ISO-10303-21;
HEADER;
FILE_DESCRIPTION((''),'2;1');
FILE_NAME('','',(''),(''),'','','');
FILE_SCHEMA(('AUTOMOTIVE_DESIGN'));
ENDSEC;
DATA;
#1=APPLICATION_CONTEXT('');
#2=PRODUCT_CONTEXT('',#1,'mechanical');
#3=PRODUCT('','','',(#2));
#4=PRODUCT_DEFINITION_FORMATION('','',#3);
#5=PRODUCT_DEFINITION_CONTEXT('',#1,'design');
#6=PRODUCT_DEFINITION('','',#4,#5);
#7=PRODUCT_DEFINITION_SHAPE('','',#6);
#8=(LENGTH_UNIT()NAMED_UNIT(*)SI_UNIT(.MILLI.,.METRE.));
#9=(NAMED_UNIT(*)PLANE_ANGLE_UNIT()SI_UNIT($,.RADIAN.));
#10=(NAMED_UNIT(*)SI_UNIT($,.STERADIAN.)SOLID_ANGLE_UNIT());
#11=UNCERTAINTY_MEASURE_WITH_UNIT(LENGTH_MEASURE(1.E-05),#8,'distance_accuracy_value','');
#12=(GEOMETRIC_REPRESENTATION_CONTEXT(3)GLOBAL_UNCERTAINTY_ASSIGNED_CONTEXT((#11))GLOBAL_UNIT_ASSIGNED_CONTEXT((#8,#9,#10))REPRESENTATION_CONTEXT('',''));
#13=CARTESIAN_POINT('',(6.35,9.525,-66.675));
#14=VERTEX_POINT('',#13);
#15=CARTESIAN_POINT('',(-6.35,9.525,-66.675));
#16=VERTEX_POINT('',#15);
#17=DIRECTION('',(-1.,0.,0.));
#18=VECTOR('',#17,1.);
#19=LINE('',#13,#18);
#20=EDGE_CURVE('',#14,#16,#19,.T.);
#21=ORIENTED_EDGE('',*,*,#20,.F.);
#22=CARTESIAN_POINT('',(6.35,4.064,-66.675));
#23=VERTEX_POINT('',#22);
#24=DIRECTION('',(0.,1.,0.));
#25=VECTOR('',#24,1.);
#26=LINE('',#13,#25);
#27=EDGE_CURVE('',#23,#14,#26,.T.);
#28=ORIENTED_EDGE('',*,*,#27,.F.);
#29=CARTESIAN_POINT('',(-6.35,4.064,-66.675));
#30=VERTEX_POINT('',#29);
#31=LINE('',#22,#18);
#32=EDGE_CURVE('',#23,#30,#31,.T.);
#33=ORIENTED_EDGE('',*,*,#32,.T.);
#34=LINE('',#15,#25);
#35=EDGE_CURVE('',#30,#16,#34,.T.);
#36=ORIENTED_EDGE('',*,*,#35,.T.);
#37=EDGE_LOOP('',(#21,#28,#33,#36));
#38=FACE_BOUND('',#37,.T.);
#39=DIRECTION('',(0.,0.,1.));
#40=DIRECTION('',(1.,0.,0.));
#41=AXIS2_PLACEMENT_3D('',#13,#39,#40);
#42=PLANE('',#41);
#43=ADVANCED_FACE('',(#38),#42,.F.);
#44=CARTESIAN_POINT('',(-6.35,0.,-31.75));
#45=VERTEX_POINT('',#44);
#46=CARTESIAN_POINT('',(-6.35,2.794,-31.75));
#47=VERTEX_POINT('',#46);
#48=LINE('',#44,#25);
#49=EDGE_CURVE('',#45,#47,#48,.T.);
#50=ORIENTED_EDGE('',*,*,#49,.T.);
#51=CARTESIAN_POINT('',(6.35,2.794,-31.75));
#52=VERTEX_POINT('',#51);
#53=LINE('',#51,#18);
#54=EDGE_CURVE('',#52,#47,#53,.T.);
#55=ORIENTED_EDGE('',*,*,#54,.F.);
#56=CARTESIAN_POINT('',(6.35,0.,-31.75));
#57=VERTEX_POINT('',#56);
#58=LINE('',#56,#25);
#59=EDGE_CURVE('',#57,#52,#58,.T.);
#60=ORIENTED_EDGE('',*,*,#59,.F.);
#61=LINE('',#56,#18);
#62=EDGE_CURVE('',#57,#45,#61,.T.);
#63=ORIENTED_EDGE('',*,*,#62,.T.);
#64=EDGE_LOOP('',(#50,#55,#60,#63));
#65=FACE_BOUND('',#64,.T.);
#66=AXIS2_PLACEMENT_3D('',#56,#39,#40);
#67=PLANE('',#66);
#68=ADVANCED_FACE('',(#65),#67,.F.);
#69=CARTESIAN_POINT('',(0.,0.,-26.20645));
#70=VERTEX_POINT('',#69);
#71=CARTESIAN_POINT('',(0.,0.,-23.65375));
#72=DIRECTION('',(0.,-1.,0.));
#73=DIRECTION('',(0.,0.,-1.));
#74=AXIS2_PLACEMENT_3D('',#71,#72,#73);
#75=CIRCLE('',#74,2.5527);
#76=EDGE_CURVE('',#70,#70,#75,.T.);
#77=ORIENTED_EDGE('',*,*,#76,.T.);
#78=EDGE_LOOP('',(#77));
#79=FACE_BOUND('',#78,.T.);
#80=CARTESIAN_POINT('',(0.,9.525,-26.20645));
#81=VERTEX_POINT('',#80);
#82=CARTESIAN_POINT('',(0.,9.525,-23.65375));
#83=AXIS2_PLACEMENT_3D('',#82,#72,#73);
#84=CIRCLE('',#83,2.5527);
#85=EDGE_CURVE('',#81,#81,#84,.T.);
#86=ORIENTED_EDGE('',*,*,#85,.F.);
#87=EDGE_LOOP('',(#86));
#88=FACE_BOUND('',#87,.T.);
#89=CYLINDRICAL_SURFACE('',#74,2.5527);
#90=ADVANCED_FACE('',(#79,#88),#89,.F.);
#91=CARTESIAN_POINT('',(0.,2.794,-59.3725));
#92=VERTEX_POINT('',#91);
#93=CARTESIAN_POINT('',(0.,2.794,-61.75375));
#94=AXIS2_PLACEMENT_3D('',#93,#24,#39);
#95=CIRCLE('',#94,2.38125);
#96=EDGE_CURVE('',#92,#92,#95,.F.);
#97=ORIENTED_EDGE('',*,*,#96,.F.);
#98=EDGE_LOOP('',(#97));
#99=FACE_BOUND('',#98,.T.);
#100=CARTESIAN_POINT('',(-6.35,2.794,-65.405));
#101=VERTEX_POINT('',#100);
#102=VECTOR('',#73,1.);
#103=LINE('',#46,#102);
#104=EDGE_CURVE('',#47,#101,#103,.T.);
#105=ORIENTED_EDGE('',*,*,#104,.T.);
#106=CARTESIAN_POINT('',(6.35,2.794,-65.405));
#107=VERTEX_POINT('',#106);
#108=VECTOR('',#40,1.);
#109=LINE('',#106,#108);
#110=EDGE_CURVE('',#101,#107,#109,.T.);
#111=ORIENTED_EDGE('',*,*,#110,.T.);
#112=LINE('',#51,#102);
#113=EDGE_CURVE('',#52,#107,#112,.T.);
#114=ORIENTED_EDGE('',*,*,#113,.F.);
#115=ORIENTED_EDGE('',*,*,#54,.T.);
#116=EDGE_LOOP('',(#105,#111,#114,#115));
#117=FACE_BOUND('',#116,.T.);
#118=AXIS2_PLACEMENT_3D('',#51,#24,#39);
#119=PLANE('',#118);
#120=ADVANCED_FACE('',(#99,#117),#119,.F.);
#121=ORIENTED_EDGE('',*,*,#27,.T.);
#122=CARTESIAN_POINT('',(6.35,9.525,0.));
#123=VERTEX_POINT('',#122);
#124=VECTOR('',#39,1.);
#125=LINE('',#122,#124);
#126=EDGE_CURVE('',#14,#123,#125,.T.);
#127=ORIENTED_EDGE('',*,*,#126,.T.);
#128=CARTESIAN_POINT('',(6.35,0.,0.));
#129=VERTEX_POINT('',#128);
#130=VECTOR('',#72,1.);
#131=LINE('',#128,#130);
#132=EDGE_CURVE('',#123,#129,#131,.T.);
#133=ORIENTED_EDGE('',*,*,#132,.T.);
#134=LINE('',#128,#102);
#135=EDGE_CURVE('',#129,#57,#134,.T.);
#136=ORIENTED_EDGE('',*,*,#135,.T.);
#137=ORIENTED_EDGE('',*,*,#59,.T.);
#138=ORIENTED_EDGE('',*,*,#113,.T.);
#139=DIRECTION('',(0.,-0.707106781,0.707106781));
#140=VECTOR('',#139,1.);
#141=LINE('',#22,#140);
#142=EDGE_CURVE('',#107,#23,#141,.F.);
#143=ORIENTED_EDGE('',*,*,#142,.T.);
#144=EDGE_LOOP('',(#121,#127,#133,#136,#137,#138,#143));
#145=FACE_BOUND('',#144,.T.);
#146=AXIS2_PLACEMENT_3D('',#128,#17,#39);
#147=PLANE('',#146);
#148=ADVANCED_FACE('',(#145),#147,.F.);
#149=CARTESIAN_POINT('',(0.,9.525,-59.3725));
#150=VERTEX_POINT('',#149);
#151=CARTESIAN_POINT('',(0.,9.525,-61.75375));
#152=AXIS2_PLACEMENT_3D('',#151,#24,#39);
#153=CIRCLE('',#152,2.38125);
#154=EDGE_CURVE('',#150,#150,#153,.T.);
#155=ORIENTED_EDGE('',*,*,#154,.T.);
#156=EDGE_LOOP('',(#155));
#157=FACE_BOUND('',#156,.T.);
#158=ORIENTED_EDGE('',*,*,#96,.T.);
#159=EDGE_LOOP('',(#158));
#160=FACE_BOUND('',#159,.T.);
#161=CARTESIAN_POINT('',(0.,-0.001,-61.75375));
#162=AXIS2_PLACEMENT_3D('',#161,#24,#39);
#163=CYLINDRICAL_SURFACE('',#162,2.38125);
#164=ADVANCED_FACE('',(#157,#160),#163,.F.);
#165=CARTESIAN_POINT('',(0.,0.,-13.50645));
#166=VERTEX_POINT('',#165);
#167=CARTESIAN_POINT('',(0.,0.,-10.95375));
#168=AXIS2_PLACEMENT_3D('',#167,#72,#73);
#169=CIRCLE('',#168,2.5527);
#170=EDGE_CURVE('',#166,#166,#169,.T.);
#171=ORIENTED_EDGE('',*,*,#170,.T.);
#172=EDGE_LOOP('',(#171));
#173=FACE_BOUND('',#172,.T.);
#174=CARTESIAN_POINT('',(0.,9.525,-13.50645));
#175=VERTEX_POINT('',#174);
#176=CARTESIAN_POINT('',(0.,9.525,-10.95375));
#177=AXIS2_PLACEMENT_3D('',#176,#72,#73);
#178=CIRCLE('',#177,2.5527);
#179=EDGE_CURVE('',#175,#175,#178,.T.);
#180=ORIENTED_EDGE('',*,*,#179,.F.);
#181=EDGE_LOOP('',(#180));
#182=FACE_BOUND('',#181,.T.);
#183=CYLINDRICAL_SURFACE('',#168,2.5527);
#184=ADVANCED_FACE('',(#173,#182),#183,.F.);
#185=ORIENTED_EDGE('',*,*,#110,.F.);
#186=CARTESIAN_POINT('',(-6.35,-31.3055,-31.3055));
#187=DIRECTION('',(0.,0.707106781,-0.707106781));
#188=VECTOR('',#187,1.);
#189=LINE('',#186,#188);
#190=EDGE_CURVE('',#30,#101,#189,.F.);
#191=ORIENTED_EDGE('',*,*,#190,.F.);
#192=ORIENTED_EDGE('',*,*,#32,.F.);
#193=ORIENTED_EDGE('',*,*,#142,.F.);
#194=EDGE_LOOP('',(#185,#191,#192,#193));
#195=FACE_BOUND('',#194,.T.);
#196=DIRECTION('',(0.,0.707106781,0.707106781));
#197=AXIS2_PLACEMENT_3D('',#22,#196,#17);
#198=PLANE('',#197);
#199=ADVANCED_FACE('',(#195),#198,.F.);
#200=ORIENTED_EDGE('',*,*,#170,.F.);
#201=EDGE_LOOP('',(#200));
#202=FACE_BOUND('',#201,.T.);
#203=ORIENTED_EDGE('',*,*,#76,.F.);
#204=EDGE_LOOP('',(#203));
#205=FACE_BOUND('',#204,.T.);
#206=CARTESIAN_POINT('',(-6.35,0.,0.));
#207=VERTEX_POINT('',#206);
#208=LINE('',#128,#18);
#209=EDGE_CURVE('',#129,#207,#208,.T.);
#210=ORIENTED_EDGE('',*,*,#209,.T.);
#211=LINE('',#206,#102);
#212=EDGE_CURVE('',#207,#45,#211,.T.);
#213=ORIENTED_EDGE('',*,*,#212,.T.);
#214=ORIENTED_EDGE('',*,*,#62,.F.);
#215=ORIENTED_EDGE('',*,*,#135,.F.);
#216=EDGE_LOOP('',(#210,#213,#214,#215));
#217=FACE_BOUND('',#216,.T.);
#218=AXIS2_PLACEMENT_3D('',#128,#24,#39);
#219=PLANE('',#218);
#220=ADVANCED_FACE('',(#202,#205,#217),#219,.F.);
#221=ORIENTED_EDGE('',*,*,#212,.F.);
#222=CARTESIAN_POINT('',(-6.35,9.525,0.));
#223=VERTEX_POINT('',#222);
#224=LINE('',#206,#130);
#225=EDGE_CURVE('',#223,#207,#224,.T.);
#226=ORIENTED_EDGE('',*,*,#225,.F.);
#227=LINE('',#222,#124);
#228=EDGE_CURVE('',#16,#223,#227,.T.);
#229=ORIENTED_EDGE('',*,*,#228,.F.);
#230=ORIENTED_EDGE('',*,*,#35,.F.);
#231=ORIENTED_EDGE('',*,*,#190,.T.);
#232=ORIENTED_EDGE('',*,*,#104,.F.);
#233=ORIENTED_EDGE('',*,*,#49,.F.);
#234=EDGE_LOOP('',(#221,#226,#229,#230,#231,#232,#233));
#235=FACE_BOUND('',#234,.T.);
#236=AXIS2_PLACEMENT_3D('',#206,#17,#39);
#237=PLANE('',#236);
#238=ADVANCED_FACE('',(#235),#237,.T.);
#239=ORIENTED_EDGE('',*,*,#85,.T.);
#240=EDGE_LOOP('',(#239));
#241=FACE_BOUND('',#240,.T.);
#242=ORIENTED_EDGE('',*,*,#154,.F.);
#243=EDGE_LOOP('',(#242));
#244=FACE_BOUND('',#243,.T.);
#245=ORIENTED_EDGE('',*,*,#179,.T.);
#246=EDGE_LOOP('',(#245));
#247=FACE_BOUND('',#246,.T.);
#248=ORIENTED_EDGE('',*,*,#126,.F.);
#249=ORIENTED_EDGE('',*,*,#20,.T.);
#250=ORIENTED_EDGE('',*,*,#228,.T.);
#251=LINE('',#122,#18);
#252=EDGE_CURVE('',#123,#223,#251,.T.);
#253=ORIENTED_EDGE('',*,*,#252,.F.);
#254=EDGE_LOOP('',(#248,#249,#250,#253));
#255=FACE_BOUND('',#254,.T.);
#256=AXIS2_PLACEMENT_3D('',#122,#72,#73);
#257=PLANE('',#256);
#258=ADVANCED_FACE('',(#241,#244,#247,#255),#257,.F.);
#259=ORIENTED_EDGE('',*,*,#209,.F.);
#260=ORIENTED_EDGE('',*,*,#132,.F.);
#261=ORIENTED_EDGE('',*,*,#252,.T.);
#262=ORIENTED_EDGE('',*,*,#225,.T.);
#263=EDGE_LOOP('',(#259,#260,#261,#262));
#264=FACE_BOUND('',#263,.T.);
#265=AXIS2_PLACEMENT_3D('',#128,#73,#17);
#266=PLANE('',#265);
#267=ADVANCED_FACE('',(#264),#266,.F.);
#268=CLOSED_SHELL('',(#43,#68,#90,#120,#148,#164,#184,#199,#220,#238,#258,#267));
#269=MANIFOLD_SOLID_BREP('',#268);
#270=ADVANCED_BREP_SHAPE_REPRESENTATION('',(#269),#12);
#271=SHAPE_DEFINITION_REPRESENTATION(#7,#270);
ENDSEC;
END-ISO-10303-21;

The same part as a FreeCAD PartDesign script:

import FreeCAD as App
import Part
import Sketcher

V = App.Vector
Q = App.Units.Quantity


def edges_at(feature, points):
    """Names of the edges that pass closest to the given points."""
    edges = feature.Shape.Edges
    near = lambda p: min(range(len(edges)), key=lambda i: edges[i].distToShape(Part.Vertex(*p))[0])
    return sorted({f"Edge{near(p) + 1}" for p in points})

doc = App.newDocument("Part")
params = doc.addObject("Spreadsheet::Sheet", "Params")
for row, (alias, value) in enumerate([
    ("sketch1_width", "0.11 in"),
    ("sketch1_height", "1.25 in"),
    ("sketch1_width2", "0.265 in"),
    ("sketch1_height2", "1.375 in"),
    ("pad1_length", "0.5 in"),
    ("sketch2_diameter", "0.201 in"),
    ("hole_diameter", "0.201 in"),
    ("sketch3_diameter", "0.1875 in"),
    ("chamfer_size", "0.05 in"),
], start=1):
    params.set(f"A{row}", alias)
    params.set(f"B{row}", "=" + value)
    params.setAlias(f"B{row}", alias)

body = doc.addObject("PartDesign::Body", "Body")

sketch1 = body.newObject("Sketcher::SketchObject", "Sketch")
sketch1.AttachmentSupport = (doc.getObject("YZ_Plane"), [""])
sketch1.MapMode = "FlatFace"
sketch1.addGeometry(Part.LineSegment(V(0, 0, 0), V(0, -31.8, 0)), False)
sketch1.addGeometry(Part.LineSegment(V(0, -31.8, 0), V(2.8, -31.8, 0)), False)
sketch1.addGeometry(Part.LineSegment(V(2.8, -31.8, 0), V(2.8, -66.7, 0)), False)
sketch1.addGeometry(Part.LineSegment(V(2.8, -66.7, 0), V(9.5, -66.7, 0)), False)
sketch1.addGeometry(Part.LineSegment(V(9.5, -66.7, 0), V(9.5, 0, 0)), False)
sketch1.addGeometry(Part.LineSegment(V(9.5, 0, 0), V(0, 0, 0)), False)
sketch1.addConstraint(Sketcher.Constraint("Coincident", 0, 2, 1, 1))
sketch1.addConstraint(Sketcher.Constraint("Coincident", 1, 2, 2, 1))
sketch1.addConstraint(Sketcher.Constraint("Coincident", 2, 2, 3, 1))
sketch1.addConstraint(Sketcher.Constraint("Coincident", 3, 2, 4, 1))
sketch1.addConstraint(Sketcher.Constraint("Coincident", 4, 2, 5, 1))
sketch1.addConstraint(Sketcher.Constraint("Coincident", 5, 2, 0, 1))
sketch1.addConstraint(Sketcher.Constraint("Vertical", 0))
sketch1.addConstraint(Sketcher.Constraint("Horizontal", 1))
sketch1.addConstraint(Sketcher.Constraint("Vertical", 2))
sketch1.addConstraint(Sketcher.Constraint("Horizontal", 3))
sketch1.addConstraint(Sketcher.Constraint("Vertical", 4))
sketch1.addConstraint(Sketcher.Constraint("Horizontal", 5))
sketch1.addConstraint(Sketcher.Constraint("Coincident", 5, 2, -1, 1))
sketch1.addConstraint(Sketcher.Constraint("DistanceX", 1, 1, 1, 2, Q("0.11 in")))
sketch1.addConstraint(Sketcher.Constraint("DistanceY", 0, 2, 0, 1, Q("1.25 in")))
sketch1.addConstraint(Sketcher.Constraint("DistanceX", 3, 1, 3, 2, Q("0.265 in")))
sketch1.addConstraint(Sketcher.Constraint("DistanceY", 2, 2, 2, 1, Q("1.375 in")))
sketch1.setExpression("Constraints[13]", "Params.sketch1_width")
sketch1.setExpression("Constraints[14]", "Params.sketch1_height")
sketch1.setExpression("Constraints[15]", "Params.sketch1_width2")
sketch1.setExpression("Constraints[16]", "Params.sketch1_height2")
pad1 = body.newObject("PartDesign::Pad", "Pad")
pad1.Profile = sketch1
pad1.setExpression("Length", "Params.pad1_length")
pad1.Midplane = True

sketch2 = body.newObject("Sketcher::SketchObject", "Sketch001")
sketch2.AttachmentSupport = (doc.getObject("XZ_Plane"), [""])
sketch2.MapMode = "FlatFace"
sketch2.addGeometry(Part.Circle(V(0, -23.7, 0), V(0, 0, 1), 2.6), False)
sketch2.addGeometry(Part.Circle(V(0, -11, 0), V(0, 0, 1), 2.6), False)
sketch2.addConstraint(Sketcher.Constraint("Equal", 0, 1))
sketch2.addConstraint(Sketcher.Constraint("PointOnObject", 0, 3, -2))
sketch2.addConstraint(Sketcher.Constraint("PointOnObject", 1, 3, -2))
sketch2.addConstraint(Sketcher.Constraint("Diameter", 0, Q("0.201 in")))
sketch2.addConstraint(Sketcher.Constraint("DistanceY", 0, 3, 1, 3, Q("0.5 in")))
sketch2.addConstraint(Sketcher.Constraint("DistanceY", 0, 3, -1, 1, 23.65375))
sketch2.setExpression("Constraints[3]", "Params.sketch2_diameter")
doc.recompute()
hole = body.newObject("PartDesign::Hole", "Hole")
hole.Profile = sketch2
hole.ThreadType = "None"
hole.setExpression("Diameter", "Params.hole_diameter")
hole.DepthType = "ThroughAll"

sketch3 = body.newObject("Sketcher::SketchObject", "Sketch002")
sketch3.AttachmentSupport = (doc.getObject("XZ_Plane"), [""])
sketch3.MapMode = "FlatFace"
sketch3.AttachmentOffset = App.Placement(V(0, 0, -0.375 * 25.4), App.Rotation())
sketch3.addGeometry(Part.Circle(V(0, -61.8, 0), V(0, 0, 1), 2.4), False)
sketch3.addConstraint(Sketcher.Constraint("PointOnObject", 0, 3, -2))
sketch3.addConstraint(Sketcher.Constraint("Diameter", 0, Q("0.1875 in")))
sketch3.addConstraint(Sketcher.Constraint("DistanceY", 0, 3, -1, 1, 61.75375))
sketch3.setExpression("Constraints[1]", "Params.sketch3_diameter")
pocket1 = body.newObject("PartDesign::Pocket", "Pocket")
pocket1.Profile = sketch3
pocket1.Type = "UpToFirst"
pocket1.Reversed = True
doc.recompute()

chamfer = body.newObject("PartDesign::Chamfer", "Chamfer")
chamfer.Base = (pocket1, edges_at(pocket1, [(0, 2.794, -66.675)]))
chamfer.setExpression("Size", "Params.chamfer_size")

doc.recompute()
